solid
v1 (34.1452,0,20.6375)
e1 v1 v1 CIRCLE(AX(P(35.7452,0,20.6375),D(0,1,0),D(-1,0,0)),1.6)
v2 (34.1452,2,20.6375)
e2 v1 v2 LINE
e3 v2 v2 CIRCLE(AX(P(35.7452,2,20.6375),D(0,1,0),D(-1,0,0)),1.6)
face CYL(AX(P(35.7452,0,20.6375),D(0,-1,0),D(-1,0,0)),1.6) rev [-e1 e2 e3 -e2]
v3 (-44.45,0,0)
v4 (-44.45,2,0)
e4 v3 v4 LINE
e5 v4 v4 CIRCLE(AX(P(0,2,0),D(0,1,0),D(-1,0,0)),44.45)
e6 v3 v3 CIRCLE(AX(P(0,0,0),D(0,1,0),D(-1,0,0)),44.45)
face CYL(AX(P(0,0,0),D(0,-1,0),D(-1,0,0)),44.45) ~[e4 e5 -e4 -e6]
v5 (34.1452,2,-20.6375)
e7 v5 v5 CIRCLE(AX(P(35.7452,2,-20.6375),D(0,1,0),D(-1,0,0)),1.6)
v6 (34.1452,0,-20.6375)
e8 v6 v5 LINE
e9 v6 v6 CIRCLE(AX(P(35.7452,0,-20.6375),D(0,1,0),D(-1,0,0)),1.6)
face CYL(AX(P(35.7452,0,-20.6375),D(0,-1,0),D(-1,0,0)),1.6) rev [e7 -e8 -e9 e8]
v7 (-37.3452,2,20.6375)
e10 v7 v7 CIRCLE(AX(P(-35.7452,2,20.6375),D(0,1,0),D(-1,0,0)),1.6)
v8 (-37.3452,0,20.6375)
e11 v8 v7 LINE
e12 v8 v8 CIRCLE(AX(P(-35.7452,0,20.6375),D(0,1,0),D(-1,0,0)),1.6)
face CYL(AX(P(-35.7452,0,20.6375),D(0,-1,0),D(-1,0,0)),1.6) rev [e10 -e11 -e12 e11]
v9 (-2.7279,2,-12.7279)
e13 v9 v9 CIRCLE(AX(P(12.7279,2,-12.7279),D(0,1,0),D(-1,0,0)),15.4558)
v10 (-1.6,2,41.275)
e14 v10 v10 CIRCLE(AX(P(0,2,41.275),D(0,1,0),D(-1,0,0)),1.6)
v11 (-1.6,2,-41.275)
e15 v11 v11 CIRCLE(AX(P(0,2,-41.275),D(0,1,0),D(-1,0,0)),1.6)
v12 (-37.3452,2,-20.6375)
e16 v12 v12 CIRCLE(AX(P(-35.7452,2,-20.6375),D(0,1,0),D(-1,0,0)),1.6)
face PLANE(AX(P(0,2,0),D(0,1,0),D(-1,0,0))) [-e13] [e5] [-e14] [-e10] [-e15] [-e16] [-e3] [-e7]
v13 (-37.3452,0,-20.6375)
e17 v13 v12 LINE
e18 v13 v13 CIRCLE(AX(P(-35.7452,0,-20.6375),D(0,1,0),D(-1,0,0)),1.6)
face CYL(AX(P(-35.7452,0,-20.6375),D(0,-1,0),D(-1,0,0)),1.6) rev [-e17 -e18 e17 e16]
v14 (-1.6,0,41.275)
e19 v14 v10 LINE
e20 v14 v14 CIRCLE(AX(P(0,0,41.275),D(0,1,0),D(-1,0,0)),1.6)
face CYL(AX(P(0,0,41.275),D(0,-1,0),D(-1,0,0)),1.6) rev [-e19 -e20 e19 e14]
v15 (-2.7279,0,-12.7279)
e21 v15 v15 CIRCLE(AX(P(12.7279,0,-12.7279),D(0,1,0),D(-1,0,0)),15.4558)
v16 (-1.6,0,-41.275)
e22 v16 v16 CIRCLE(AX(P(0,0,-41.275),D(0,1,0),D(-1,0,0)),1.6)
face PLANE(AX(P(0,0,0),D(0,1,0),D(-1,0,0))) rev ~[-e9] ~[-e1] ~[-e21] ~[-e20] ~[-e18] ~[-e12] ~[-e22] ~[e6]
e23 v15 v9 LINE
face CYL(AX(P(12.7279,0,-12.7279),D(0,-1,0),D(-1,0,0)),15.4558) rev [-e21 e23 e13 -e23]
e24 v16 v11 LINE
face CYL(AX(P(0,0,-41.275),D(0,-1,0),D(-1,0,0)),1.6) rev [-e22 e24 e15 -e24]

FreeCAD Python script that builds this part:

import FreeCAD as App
import Part
import Sketcher
Q = App.Units.Quantity

doc = App.newDocument("Part")
body = doc.addObject("PartDesign::Body", "Body")

sketch1 = doc.addObject("Sketcher::SketchObject", "Sketch")
body.addObject(sketch1)
sketch1.AttachmentSupport = (doc.XZ_Plane, [""])
sketch1.MapMode = "FlatFace"
sketch1.addGeometry(Part.Circle(App.Vector(0, 0, 0), App.Vector(0, 0, 1), 44.5), False)
sketch1.addGeometry(Part.Circle(App.Vector(35.7, -20.6, 0), App.Vector(0, 0, 1), 1.6), False)
sketch1.addGeometry(Part.Circle(App.Vector(12.7, -12.7, 0), App.Vector(0, 0, 1), 15.5), False)
sketch1.addGeometry(Part.Circle(App.Vector(0, -41.3, 0), App.Vector(0, 0, 1), 1.6), False)
sketch1.addGeometry(Part.Circle(App.Vector(-35.7, -20.6, 0), App.Vector(0, 0, 1), 1.6), False)
sketch1.addGeometry(Part.Circle(App.Vector(35.7, 20.6, 0), App.Vector(0, 0, 1), 1.6), False)
sketch1.addGeometry(Part.Circle(App.Vector(-35.7, 20.6, 0), App.Vector(0, 0, 1), 1.6), False)
sketch1.addGeometry(Part.Circle(App.Vector(0, 41.3, 0), App.Vector(0, 0, 1), 1.6), False)
sketch1.addConstraint(Sketcher.Constraint("Coincident", 0, 3, -1, 1))
sketch1.addConstraint(Sketcher.Constraint("Equal", 1, 3))
sketch1.addConstraint(Sketcher.Constraint("Equal", 3, 4))
sketch1.addConstraint(Sketcher.Constraint("Equal", 4, 5))
sketch1.addConstraint(Sketcher.Constraint("Equal", 5, 6))
sketch1.addConstraint(Sketcher.Constraint("Equal", 6, 7))
sketch1.addConstraint(Sketcher.Constraint("Symmetric", 4, 3, 5, 3, -1, 1))
sketch1.addConstraint(Sketcher.Constraint("Symmetric", 1, 3, 6, 3, -1, 1))
sketch1.addConstraint(Sketcher.Constraint("Symmetric", 3, 3, 7, 3, -1, 1))
sketch1.addConstraint(Sketcher.Constraint("Symmetric", 1, 3, 4, 3, -2))
sketch1.addConstraint(Sketcher.Constraint("PointOnObject", 3, 3, -2))
sketch1.addConstraint(Sketcher.Constraint("Diameter", 0, Q("88.9 mm")))
sketch1.addConstraint(Sketcher.Constraint("Diameter", 1, Q("3.2 mm")))
sketch1.addConstraint(Sketcher.Constraint("Diameter", 2, Q("30.9116 mm")))
sketch1.addConstraint(Sketcher.Constraint("DistanceX", -1, 1, 2, 3, Q("12.728 mm")))
sketch1.addConstraint(Sketcher.Constraint("DistanceY", 2, 3, -1, 1, Q("12.728 mm")))
sketch1.addConstraint(Sketcher.Constraint("DistanceY", 3, 3, -1, 1, Q("41.275 mm")))
sketch1.addConstraint(Sketcher.Constraint("DistanceX", 4, 3, 2, 3, Q("48.473 mm")))
sketch1.addConstraint(Sketcher.Constraint("DistanceY", 1, 3, 5, 3, Q("41.275 mm")))
pad1 = doc.addObject("PartDesign::Pad", "Pad")
body.addObject(pad1)
pad1.Profile = sketch1
pad1.Length = 2
pad1.Reversed = True

doc.recompute()
